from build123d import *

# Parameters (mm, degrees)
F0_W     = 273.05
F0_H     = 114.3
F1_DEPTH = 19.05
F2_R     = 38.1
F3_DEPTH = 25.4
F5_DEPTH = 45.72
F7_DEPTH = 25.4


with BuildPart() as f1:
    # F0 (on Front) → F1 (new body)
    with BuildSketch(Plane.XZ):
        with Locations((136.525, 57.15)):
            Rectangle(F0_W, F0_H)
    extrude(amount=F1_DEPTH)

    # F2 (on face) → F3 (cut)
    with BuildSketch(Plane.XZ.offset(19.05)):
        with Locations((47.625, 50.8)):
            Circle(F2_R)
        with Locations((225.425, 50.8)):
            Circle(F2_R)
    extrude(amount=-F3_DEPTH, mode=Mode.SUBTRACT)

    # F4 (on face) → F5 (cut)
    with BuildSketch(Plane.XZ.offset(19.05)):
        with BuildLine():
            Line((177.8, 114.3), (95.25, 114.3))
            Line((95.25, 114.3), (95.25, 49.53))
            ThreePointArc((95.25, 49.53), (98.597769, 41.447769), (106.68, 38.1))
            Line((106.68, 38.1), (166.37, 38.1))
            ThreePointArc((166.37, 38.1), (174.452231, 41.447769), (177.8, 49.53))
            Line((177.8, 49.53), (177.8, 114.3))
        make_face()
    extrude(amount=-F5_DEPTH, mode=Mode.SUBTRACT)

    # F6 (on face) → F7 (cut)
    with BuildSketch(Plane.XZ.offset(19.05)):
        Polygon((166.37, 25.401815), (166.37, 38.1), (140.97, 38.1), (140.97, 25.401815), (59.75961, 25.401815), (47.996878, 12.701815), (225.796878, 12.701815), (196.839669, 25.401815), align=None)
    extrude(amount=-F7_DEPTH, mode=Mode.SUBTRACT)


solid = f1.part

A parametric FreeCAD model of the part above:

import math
import FreeCAD as App
import Part
import Sketcher
Q = App.Units.Quantity

doc = App.newDocument("Part")
body = doc.addObject("PartDesign::Body", "Body")

sketch1 = body.newObject("Sketcher::SketchObject", "Sketch")
sketch1.AttachmentSupport = (doc.getObject("XZ_Plane"), [""])
sketch1.MapMode = "FlatFace"
sketch1.addGeometry(Part.LineSegment(App.Vector(0, 114, 0), App.Vector(0, 0, 0)), False)
sketch1.addGeometry(Part.LineSegment(App.Vector(0, 0, 0), App.Vector(273, 0, 0)), False)
sketch1.addGeometry(Part.LineSegment(App.Vector(273, 0, 0), App.Vector(273, 114, 0)), False)
sketch1.addGeometry(Part.LineSegment(App.Vector(273, 114, 0), App.Vector(0, 114, 0)), False)
sketch1.addConstraint(Sketcher.Constraint("Coincident", 0, 2, 1, 1))
sketch1.addConstraint(Sketcher.Constraint("Coincident", 1, 2, 2, 1))
sketch1.addConstraint(Sketcher.Constraint("Coincident", 2, 2, 3, 1))
sketch1.addConstraint(Sketcher.Constraint("Coincident", 3, 2, 0, 1))
sketch1.addConstraint(Sketcher.Constraint("Vertical", 0))
sketch1.addConstraint(Sketcher.Constraint("Horizontal", 1))
sketch1.addConstraint(Sketcher.Constraint("Vertical", 2))
sketch1.addConstraint(Sketcher.Constraint("Horizontal", 3))
sketch1.addConstraint(Sketcher.Constraint("Coincident", 0, 2, -1, 1))
sketch1.addConstraint(Sketcher.Constraint("DistanceY", 0, 2, 0, 1, Q("4.5 in")))
sketch1.addConstraint(Sketcher.Constraint("DistanceX", 1, 1, 1, 2, Q("10.75 in")))
pad1 = body.newObject("PartDesign::Pad", "Pad")
pad1.Profile = sketch1
pad1.Length = Q("0.75 in")

sketch2 = body.newObject("Sketcher::SketchObject", "Sketch001")
sketch2.AttachmentSupport = (doc.getObject("XZ_Plane"), [""])
sketch2.MapMode = "FlatFace"
sketch2.AttachmentOffset = App.Placement(App.Vector(0, 0, 0.75 * 25.4), App.Rotation())
sketch2.addGeometry(Part.Circle(App.Vector(48, 51, 0), App.Vector(0, 0, 1), 38), False)
sketch2.addGeometry(Part.Circle(App.Vector(225, 51, 0), App.Vector(0, 0, 1), 38), False)
sketch2.addConstraint(Sketcher.Constraint("Equal", 0, 1))
sketch2.addConstraint(Sketcher.Constraint("Horizontal", 0, 3, 1, 3))
sketch2.addConstraint(Sketcher.Constraint("Diameter", 0, Q("3 in")))
sketch2.addConstraint(Sketcher.Constraint("DistanceY", -1, 1, 0, 3, Q("2 in")))
sketch2.addConstraint(Sketcher.Constraint("DistanceX", 0, 3, 1, 3, Q("7 in")))
sketch2.addConstraint(Sketcher.Constraint("DistanceX", -1, 1, 0, 3, Q("1.875 in")))
pocket1 = body.newObject("PartDesign::Pocket", "Pocket")
pocket1.Profile = sketch2
pocket1.Length = Q("1 in")

sketch3 = body.newObject("Sketcher::SketchObject", "Sketch002")
sketch3.AttachmentSupport = (doc.getObject("XZ_Plane"), [""])
sketch3.MapMode = "FlatFace"
sketch3.AttachmentOffset = App.Placement(App.Vector(0, 0, 0.75 * 25.4), App.Rotation())
sketch3.addGeometry(Part.LineSegment(App.Vector(178, 114, 0), App.Vector(95, 114, 0)), False)
sketch3.addGeometry(Part.LineSegment(App.Vector(95, 114, 0), App.Vector(95, 50, 0)), False)
sketch3.addGeometry(Part.ArcOfCircle(Part.Circle(App.Vector(107, 50, 0), App.Vector(0, 0, 1), 11), math.radians(180), math.radians(270)), False)
sketch3.addGeometry(Part.LineSegment(App.Vector(107, 38, 0), App.Vector(166, 38, 0)), False)
sketch3.addGeometry(Part.ArcOfCircle(Part.Circle(App.Vector(166, 50, 0), App.Vector(0, 0, 1), 11), math.radians(-90), math.radians(0)), False)
sketch3.addGeometry(Part.LineSegment(App.Vector(178, 50, 0), App.Vector(178, 114, 0)), False)
sketch3.addConstraint(Sketcher.Constraint("Coincident", 0, 2, 1, 1))
sketch3.addConstraint(Sketcher.Constraint("Tangent", 1, 2, 2, 1))
sketch3.addConstraint(Sketcher.Constraint("Tangent", 2, 2, 3, 1))
sketch3.addConstraint(Sketcher.Constraint("Tangent", 3, 2, 4, 1))
sketch3.addConstraint(Sketcher.Constraint("Tangent", 4, 2, 5, 1))
sketch3.addConstraint(Sketcher.Constraint("Coincident", 5, 2, 0, 1))
sketch3.addConstraint(Sketcher.Constraint("Horizontal", 0))
sketch3.addConstraint(Sketcher.Constraint("Vertical", 1))
sketch3.addConstraint(Sketcher.Constraint("Horizontal", 3))
sketch3.addConstraint(Sketcher.Constraint("Vertical", 5))
sketch3.addConstraint(Sketcher.Constraint("Equal", 2, 4))
sketch3.addConstraint(Sketcher.Constraint("Radius", 2, Q("0.4499999 in")))
sketch3.addConstraint(Sketcher.Constraint("DistanceX", -1, 1, 4, 2, Q("7 in")))
sketch3.addConstraint(Sketcher.Constraint("DistanceY", 2, 2, 0, 2, Q("3 in")))
sketch3.addConstraint(Sketcher.Constraint("DistanceX", 0, 2, 0, 1, Q("3.25 in")))
sketch3.addConstraint(Sketcher.Constraint("DistanceY", -1, 1, 0, 2, Q("4.5 in")))
pocket2 = body.newObject("PartDesign::Pocket", "Pocket001")
pocket2.Profile = sketch3
pocket2.Length = Q("1.8 in")

sketch4 = body.newObject("Sketcher::SketchObject", "Sketch003")
sketch4.AttachmentSupport = (doc.getObject("XZ_Plane"), [""])
sketch4.MapMode = "FlatFace"
sketch4.AttachmentOffset = App.Placement(App.Vector(0, 0, 0.75 * 25.4), App.Rotation())
sketch4.addGeometry(Part.LineSegment(App.Vector(166, 25, 0), App.Vector(166, 38, 0)), False)
sketch4.addGeometry(Part.LineSegment(App.Vector(166, 38, 0), App.Vector(141, 38, 0)), False)
sketch4.addGeometry(Part.LineSegment(App.Vector(141, 38, 0), App.Vector(141, 25, 0)), False)
sketch4.addGeometry(Part.LineSegment(App.Vector(141, 25, 0), App.Vector(60, 25, 0)), False)
sketch4.addGeometry(Part.LineSegment(App.Vector(60, 25, 0), App.Vector(48, 13, 0)), False)
sketch4.addGeometry(Part.LineSegment(App.Vector(48, 13, 0), App.Vector(226, 13, 0)), False)
sketch4.addGeometry(Part.LineSegment(App.Vector(226, 13, 0), App.Vector(197, 25, 0)), False)
sketch4.addGeometry(Part.LineSegment(App.Vector(197, 25, 0), App.Vector(166, 25, 0)), False)
sketch4.addConstraint(Sketcher.Constraint("Coincident", 0, 2, 1, 1))
sketch4.addConstraint(Sketcher.Constraint("Coincident", 1, 2, 2, 1))
sketch4.addConstraint(Sketcher.Constraint("Coincident", 2, 2, 3, 1))
sketch4.addConstraint(Sketcher.Constraint("Coincident", 3, 2, 4, 1))
sketch4.addConstraint(Sketcher.Constraint("Coincident", 4, 2, 5, 1))
sketch4.addConstraint(Sketcher.Constraint("Coincident", 5, 2, 6, 1))
sketch4.addConstraint(Sketcher.Constraint("Coincident", 6, 2, 7, 1))
sketch4.addConstraint(Sketcher.Constraint("Coincident", 7, 2, 0, 1))
sketch4.addConstraint(Sketcher.Constraint("Vertical", 0))
sketch4.addConstraint(Sketcher.Constraint("Horizontal", 1))
sketch4.addConstraint(Sketcher.Constraint("Vertical", 2))
sketch4.addConstraint(Sketcher.Constraint("Horizontal", 3))
sketch4.addConstraint(Sketcher.Constraint("Horizontal", 5))
sketch4.addConstraint(Sketcher.Constraint("Horizontal", 7))
sketch4.addConstraint(Sketcher.Constraint("Horizontal", 3, 2, 6, 2))
sketch4.addConstraint(Sketcher.Constraint("DistanceX", 1, 2, 1, 1, Q("1 in")))
sketch4.addConstraint(Sketcher.Constraint("DistanceX", 5, 1, 5, 2, Q("7 in")))
sketch4.addConstraint(Sketcher.Constraint("DistanceY", -1, 1, 0, 2, Q("1.5 in")))
sketch4.addConstraint(Sketcher.Constraint("DistanceY", 4, 2, 3, 2, Q("0.5 in")))
sketch4.addConstraint(Sketcher.Constraint("DistanceX", -1, 1, 0, 2, Q("6.55 in")))
sketch4.addConstraint(Sketcher.Constraint("DistanceX", 3, 2, 3, 1, Q("81.21039 mm")))
sketch4.addConstraint(Sketcher.Constraint("DistanceX", 7, 2, 7, 1, Q("30.469669 mm")))
sketch4.addConstraint(Sketcher.Constraint("Distance", 6, Q("31.619772 mm")))
sketch4.addConstraint(Sketcher.Constraint("DistanceY", 0, 1, 0, 2, Q("12.698185 mm")))
pocket3 = body.newObject("PartDesign::Pocket", "Pocket002")
pocket3.Profile = sketch4
pocket3.Length = Q("1 in")

doc.recompute()
